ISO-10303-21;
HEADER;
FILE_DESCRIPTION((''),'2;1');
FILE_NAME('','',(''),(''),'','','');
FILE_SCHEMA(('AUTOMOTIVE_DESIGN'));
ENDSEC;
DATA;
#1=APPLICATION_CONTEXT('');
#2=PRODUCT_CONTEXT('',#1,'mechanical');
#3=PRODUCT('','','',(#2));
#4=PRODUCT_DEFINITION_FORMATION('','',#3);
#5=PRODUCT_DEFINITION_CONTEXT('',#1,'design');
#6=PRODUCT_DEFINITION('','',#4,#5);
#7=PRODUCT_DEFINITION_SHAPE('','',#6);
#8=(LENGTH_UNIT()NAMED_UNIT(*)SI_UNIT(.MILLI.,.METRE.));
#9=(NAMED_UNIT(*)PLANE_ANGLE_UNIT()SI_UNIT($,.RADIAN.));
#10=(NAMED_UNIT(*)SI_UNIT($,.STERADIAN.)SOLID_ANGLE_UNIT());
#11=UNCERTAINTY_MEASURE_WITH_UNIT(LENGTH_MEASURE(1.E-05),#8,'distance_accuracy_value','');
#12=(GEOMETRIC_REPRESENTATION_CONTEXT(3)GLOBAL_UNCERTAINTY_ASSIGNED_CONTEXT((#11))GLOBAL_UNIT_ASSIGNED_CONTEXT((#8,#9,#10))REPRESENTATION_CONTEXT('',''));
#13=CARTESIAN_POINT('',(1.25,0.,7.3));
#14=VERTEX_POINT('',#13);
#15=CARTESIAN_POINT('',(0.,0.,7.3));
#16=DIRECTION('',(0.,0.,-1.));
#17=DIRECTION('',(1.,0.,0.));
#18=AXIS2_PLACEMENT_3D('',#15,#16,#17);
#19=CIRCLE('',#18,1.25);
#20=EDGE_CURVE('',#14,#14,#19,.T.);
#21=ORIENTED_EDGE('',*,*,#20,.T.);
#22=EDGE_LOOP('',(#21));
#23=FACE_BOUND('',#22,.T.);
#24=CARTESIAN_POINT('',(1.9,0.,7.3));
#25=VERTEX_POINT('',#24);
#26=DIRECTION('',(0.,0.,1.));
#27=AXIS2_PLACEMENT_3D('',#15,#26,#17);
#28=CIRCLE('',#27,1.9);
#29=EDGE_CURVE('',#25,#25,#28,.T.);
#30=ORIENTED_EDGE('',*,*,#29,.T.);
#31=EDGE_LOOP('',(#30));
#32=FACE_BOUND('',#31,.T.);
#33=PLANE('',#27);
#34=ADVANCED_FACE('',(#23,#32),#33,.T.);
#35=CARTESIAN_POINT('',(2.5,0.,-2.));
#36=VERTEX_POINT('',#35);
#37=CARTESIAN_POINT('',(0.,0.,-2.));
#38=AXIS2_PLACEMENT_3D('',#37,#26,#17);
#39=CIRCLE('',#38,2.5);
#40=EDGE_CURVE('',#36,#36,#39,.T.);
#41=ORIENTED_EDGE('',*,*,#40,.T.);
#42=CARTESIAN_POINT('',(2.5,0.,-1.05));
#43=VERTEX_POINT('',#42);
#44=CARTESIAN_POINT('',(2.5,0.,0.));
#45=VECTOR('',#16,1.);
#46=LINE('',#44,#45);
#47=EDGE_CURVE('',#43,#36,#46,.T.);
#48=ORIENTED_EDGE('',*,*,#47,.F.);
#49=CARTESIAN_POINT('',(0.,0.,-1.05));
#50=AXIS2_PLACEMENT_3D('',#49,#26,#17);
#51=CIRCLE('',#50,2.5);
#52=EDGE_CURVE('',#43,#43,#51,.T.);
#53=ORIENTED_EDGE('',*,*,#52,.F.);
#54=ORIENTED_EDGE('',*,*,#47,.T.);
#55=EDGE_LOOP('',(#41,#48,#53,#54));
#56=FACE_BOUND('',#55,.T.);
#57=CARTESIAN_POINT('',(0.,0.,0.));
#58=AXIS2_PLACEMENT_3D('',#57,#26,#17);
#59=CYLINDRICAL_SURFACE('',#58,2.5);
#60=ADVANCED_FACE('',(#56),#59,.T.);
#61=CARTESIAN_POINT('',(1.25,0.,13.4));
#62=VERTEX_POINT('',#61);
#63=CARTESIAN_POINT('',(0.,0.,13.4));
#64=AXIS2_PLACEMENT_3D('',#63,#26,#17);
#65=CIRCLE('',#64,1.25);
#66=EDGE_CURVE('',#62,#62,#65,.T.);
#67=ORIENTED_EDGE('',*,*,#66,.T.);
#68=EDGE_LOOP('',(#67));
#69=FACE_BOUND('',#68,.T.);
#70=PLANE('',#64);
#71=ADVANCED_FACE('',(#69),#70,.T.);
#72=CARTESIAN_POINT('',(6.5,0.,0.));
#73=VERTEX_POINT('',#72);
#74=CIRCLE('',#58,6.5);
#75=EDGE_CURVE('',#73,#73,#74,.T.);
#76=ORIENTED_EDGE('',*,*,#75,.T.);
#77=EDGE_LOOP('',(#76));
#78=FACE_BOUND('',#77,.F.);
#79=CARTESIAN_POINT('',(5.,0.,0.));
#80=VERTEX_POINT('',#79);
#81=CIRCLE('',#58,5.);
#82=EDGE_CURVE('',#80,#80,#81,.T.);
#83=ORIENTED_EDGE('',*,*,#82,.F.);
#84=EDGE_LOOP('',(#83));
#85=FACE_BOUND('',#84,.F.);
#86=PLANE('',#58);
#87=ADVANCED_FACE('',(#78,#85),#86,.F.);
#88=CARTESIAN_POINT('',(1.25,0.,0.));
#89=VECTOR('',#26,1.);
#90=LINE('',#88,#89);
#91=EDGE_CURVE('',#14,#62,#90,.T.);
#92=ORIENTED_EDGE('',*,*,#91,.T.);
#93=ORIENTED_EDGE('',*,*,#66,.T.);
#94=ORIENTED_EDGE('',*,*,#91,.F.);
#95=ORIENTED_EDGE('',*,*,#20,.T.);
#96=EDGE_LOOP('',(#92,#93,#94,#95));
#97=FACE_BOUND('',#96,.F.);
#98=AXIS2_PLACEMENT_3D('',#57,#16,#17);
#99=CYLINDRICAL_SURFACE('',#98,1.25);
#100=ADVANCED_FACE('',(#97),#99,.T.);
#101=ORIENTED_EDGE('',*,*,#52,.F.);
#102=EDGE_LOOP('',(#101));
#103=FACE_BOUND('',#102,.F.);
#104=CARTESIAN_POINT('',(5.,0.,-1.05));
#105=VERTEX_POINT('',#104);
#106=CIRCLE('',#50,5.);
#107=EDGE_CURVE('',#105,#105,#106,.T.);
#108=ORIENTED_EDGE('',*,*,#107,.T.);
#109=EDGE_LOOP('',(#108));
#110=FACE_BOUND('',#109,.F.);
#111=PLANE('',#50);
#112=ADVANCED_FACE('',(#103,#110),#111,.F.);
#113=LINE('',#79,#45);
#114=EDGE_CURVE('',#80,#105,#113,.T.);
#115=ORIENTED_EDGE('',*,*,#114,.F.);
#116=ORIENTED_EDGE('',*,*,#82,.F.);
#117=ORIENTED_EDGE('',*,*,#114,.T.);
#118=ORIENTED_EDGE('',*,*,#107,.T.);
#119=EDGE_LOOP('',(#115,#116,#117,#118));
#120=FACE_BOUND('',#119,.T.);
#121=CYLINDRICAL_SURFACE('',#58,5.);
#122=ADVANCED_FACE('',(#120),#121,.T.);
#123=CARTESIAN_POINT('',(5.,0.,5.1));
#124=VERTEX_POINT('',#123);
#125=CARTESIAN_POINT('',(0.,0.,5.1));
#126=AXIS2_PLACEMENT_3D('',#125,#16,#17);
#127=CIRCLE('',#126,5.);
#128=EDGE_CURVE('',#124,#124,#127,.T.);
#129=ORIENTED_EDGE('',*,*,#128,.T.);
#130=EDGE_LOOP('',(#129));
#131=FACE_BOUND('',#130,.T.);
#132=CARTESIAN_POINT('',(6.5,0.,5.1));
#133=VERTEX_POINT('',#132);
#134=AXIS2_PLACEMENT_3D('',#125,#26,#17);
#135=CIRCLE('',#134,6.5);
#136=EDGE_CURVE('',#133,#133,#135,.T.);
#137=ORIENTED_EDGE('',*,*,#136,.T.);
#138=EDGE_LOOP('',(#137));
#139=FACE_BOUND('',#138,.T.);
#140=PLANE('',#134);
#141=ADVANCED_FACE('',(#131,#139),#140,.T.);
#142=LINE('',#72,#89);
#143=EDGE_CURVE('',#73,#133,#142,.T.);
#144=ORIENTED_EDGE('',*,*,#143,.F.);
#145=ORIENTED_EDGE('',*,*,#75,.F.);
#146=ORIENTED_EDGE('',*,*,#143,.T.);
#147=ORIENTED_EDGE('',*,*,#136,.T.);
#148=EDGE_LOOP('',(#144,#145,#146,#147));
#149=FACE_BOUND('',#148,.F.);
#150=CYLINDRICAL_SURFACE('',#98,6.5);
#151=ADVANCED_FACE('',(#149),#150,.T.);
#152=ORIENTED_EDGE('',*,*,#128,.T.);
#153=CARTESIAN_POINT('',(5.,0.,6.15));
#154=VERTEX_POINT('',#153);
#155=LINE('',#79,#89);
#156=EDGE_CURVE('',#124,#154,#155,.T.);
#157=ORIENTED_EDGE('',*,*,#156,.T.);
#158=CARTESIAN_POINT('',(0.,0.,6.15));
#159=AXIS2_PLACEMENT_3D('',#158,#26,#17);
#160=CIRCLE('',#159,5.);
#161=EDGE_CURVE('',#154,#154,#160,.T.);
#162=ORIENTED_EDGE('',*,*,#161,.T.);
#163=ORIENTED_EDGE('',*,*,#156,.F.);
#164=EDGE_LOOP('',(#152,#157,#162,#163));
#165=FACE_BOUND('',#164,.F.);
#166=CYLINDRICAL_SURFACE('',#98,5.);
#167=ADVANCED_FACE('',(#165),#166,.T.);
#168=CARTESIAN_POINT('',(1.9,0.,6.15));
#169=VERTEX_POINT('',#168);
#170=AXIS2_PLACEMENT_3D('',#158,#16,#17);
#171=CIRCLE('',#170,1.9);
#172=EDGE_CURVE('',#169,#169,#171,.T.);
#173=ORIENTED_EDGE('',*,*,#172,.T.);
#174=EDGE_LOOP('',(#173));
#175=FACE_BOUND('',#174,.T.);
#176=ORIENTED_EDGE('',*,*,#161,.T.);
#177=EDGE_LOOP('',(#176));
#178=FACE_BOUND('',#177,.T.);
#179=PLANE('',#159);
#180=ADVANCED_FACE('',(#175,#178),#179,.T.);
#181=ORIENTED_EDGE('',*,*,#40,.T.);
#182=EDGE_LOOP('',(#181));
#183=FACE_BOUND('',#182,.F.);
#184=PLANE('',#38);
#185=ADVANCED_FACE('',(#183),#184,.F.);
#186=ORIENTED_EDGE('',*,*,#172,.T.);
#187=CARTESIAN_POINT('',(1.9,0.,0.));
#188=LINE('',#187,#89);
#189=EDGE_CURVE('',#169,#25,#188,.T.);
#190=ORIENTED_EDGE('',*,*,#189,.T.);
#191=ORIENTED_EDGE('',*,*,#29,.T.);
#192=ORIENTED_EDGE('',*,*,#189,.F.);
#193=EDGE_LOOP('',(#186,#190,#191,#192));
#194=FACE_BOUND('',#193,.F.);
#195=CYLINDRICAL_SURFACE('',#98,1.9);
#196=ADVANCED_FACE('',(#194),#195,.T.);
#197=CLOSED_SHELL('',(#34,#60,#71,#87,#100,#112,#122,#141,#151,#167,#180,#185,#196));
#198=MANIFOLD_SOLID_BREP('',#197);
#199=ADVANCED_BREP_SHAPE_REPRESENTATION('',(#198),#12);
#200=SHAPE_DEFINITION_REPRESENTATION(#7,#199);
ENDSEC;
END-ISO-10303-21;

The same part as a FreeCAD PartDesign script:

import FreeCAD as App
import Part
import Sketcher
Q = App.Units.Quantity

doc = App.newDocument("Part")
params = doc.addObject("Spreadsheet::Sheet", "Params")
for row, (alias, value) in enumerate([
    ("sketch1_diameter", "13 mm"),
    ("pad1_length", "5.1 mm"),
    ("sketch2_diameter", "10 mm"),
    ("pad2_length", "6.15 mm"),
    ("pad2_length2", "1.05 mm"),
    ("sketch3_diameter", "3.8 mm"),
    ("pad3_length", "7.3 mm"),
    ("sketch4_diameter", "5 mm"),
    ("pad4_length", "2 mm"),
    ("sketch5_diameter", "2.5 mm"),
    ("pad5_length", "13.4 mm"),
], start=1):
    params.set(f"A{row}", alias)
    params.set(f"B{row}", "=" + value)
    params.setAlias(f"B{row}", alias)

body = doc.addObject("PartDesign::Body", "Body")

# Sketch on XY plane
sketch1 = body.newObject("Sketcher::SketchObject", "Sketch")
sketch1.AttachmentSupport = (doc.getObject("XY_Plane"), [""])
sketch1.MapMode = "FlatFace"
sketch1.addGeometry(Part.Circle(App.Vector(0, 0, 0), App.Vector(0, 0, 1), 6), False)
sketch1.addConstraint([
    Sketcher.Constraint("Coincident", 0, 3, -1, 1),
    Sketcher.Constraint("Diameter", 0, Q("13 mm")),
])
sketch1.setExpression("Constraints[1]", "Params.sketch1_diameter")
pad1 = body.newObject("PartDesign::Pad", "Pad")
pad1.Profile = sketch1
pad1.setExpression("Length", "Params.pad1_length")

# Sketch on XY plane
sketch2 = body.newObject("Sketcher::SketchObject", "Sketch001")
sketch2.AttachmentSupport = (doc.getObject("XY_Plane"), [""])
sketch2.MapMode = "FlatFace"
sketch2.addGeometry(Part.Circle(App.Vector(0, 0, 0), App.Vector(0, 0, 1), 5), False)
sketch2.addConstraint([
    Sketcher.Constraint("Coincident", 0, 3, -1, 1),
    Sketcher.Constraint("Diameter", 0, Q("10 mm")),
])
sketch2.setExpression("Constraints[1]", "Params.sketch2_diameter")
pad2 = body.newObject("PartDesign::Pad", "Pad001")
pad2.Profile = sketch2
pad2.Type = "TwoLengths"
pad2.setExpression("Length", "Params.pad2_length")
pad2.setExpression("Length2", "Params.pad2_length2")

# Sketch on XY plane
sketch3 = body.newObject("Sketcher::SketchObject", "Sketch002")
sketch3.AttachmentSupport = (doc.getObject("XY_Plane"), [""])
sketch3.MapMode = "FlatFace"
sketch3.addGeometry(Part.Circle(App.Vector(0, 0, 0), App.Vector(0, 0, 1), 1.9), False)
sketch3.addConstraint([
    Sketcher.Constraint("Coincident", 0, 3, -1, 1),
    Sketcher.Constraint("Diameter", 0, Q("3.8 mm")),
])
sketch3.setExpression("Constraints[1]", "Params.sketch3_diameter")
pad3 = body.newObject("PartDesign::Pad", "Pad002")
pad3.Profile = sketch3
pad3.setExpression("Length", "Params.pad3_length")

# Sketch on XY plane
sketch4 = body.newObject("Sketcher::SketchObject", "Sketch003")
sketch4.AttachmentSupport = (doc.getObject("XY_Plane"), [""])
sketch4.MapMode = "FlatFace"
sketch4.addGeometry(Part.Circle(App.Vector(0, 0, 0), App.Vector(0, 0, 1), 2.5), False)
sketch4.addConstraint([
    Sketcher.Constraint("Coincident", 0, 3, -1, 1),
    Sketcher.Constraint("Diameter", 0, Q("5 mm")),
])
sketch4.setExpression("Constraints[1]", "Params.sketch4_diameter")
pad4 = body.newObject("PartDesign::Pad", "Pad003")
pad4.Profile = sketch4
pad4.setExpression("Length", "Params.pad4_length")
pad4.Reversed = True

# Sketch on XY plane
sketch5 = body.newObject("Sketcher::SketchObject", "Sketch004")
sketch5.AttachmentSupport = (doc.getObject("XY_Plane"), [""])
sketch5.MapMode = "FlatFace"
sketch5.addGeometry(Part.Circle(App.Vector(0, 0, 0), App.Vector(0, 0, 1), 1.2), False)
sketch5.addConstraint([
    Sketcher.Constraint("Coincident", 0, 3, -1, 1),
    Sketcher.Constraint("Diameter", 0, Q("2.5 mm")),
])
sketch5.setExpression("Constraints[1]", "Params.sketch5_diameter")
pad5 = body.newObject("PartDesign::Pad", "Pad004")
pad5.Profile = sketch5
pad5.setExpression("Length", "Params.pad5_length")

doc.recompute()
